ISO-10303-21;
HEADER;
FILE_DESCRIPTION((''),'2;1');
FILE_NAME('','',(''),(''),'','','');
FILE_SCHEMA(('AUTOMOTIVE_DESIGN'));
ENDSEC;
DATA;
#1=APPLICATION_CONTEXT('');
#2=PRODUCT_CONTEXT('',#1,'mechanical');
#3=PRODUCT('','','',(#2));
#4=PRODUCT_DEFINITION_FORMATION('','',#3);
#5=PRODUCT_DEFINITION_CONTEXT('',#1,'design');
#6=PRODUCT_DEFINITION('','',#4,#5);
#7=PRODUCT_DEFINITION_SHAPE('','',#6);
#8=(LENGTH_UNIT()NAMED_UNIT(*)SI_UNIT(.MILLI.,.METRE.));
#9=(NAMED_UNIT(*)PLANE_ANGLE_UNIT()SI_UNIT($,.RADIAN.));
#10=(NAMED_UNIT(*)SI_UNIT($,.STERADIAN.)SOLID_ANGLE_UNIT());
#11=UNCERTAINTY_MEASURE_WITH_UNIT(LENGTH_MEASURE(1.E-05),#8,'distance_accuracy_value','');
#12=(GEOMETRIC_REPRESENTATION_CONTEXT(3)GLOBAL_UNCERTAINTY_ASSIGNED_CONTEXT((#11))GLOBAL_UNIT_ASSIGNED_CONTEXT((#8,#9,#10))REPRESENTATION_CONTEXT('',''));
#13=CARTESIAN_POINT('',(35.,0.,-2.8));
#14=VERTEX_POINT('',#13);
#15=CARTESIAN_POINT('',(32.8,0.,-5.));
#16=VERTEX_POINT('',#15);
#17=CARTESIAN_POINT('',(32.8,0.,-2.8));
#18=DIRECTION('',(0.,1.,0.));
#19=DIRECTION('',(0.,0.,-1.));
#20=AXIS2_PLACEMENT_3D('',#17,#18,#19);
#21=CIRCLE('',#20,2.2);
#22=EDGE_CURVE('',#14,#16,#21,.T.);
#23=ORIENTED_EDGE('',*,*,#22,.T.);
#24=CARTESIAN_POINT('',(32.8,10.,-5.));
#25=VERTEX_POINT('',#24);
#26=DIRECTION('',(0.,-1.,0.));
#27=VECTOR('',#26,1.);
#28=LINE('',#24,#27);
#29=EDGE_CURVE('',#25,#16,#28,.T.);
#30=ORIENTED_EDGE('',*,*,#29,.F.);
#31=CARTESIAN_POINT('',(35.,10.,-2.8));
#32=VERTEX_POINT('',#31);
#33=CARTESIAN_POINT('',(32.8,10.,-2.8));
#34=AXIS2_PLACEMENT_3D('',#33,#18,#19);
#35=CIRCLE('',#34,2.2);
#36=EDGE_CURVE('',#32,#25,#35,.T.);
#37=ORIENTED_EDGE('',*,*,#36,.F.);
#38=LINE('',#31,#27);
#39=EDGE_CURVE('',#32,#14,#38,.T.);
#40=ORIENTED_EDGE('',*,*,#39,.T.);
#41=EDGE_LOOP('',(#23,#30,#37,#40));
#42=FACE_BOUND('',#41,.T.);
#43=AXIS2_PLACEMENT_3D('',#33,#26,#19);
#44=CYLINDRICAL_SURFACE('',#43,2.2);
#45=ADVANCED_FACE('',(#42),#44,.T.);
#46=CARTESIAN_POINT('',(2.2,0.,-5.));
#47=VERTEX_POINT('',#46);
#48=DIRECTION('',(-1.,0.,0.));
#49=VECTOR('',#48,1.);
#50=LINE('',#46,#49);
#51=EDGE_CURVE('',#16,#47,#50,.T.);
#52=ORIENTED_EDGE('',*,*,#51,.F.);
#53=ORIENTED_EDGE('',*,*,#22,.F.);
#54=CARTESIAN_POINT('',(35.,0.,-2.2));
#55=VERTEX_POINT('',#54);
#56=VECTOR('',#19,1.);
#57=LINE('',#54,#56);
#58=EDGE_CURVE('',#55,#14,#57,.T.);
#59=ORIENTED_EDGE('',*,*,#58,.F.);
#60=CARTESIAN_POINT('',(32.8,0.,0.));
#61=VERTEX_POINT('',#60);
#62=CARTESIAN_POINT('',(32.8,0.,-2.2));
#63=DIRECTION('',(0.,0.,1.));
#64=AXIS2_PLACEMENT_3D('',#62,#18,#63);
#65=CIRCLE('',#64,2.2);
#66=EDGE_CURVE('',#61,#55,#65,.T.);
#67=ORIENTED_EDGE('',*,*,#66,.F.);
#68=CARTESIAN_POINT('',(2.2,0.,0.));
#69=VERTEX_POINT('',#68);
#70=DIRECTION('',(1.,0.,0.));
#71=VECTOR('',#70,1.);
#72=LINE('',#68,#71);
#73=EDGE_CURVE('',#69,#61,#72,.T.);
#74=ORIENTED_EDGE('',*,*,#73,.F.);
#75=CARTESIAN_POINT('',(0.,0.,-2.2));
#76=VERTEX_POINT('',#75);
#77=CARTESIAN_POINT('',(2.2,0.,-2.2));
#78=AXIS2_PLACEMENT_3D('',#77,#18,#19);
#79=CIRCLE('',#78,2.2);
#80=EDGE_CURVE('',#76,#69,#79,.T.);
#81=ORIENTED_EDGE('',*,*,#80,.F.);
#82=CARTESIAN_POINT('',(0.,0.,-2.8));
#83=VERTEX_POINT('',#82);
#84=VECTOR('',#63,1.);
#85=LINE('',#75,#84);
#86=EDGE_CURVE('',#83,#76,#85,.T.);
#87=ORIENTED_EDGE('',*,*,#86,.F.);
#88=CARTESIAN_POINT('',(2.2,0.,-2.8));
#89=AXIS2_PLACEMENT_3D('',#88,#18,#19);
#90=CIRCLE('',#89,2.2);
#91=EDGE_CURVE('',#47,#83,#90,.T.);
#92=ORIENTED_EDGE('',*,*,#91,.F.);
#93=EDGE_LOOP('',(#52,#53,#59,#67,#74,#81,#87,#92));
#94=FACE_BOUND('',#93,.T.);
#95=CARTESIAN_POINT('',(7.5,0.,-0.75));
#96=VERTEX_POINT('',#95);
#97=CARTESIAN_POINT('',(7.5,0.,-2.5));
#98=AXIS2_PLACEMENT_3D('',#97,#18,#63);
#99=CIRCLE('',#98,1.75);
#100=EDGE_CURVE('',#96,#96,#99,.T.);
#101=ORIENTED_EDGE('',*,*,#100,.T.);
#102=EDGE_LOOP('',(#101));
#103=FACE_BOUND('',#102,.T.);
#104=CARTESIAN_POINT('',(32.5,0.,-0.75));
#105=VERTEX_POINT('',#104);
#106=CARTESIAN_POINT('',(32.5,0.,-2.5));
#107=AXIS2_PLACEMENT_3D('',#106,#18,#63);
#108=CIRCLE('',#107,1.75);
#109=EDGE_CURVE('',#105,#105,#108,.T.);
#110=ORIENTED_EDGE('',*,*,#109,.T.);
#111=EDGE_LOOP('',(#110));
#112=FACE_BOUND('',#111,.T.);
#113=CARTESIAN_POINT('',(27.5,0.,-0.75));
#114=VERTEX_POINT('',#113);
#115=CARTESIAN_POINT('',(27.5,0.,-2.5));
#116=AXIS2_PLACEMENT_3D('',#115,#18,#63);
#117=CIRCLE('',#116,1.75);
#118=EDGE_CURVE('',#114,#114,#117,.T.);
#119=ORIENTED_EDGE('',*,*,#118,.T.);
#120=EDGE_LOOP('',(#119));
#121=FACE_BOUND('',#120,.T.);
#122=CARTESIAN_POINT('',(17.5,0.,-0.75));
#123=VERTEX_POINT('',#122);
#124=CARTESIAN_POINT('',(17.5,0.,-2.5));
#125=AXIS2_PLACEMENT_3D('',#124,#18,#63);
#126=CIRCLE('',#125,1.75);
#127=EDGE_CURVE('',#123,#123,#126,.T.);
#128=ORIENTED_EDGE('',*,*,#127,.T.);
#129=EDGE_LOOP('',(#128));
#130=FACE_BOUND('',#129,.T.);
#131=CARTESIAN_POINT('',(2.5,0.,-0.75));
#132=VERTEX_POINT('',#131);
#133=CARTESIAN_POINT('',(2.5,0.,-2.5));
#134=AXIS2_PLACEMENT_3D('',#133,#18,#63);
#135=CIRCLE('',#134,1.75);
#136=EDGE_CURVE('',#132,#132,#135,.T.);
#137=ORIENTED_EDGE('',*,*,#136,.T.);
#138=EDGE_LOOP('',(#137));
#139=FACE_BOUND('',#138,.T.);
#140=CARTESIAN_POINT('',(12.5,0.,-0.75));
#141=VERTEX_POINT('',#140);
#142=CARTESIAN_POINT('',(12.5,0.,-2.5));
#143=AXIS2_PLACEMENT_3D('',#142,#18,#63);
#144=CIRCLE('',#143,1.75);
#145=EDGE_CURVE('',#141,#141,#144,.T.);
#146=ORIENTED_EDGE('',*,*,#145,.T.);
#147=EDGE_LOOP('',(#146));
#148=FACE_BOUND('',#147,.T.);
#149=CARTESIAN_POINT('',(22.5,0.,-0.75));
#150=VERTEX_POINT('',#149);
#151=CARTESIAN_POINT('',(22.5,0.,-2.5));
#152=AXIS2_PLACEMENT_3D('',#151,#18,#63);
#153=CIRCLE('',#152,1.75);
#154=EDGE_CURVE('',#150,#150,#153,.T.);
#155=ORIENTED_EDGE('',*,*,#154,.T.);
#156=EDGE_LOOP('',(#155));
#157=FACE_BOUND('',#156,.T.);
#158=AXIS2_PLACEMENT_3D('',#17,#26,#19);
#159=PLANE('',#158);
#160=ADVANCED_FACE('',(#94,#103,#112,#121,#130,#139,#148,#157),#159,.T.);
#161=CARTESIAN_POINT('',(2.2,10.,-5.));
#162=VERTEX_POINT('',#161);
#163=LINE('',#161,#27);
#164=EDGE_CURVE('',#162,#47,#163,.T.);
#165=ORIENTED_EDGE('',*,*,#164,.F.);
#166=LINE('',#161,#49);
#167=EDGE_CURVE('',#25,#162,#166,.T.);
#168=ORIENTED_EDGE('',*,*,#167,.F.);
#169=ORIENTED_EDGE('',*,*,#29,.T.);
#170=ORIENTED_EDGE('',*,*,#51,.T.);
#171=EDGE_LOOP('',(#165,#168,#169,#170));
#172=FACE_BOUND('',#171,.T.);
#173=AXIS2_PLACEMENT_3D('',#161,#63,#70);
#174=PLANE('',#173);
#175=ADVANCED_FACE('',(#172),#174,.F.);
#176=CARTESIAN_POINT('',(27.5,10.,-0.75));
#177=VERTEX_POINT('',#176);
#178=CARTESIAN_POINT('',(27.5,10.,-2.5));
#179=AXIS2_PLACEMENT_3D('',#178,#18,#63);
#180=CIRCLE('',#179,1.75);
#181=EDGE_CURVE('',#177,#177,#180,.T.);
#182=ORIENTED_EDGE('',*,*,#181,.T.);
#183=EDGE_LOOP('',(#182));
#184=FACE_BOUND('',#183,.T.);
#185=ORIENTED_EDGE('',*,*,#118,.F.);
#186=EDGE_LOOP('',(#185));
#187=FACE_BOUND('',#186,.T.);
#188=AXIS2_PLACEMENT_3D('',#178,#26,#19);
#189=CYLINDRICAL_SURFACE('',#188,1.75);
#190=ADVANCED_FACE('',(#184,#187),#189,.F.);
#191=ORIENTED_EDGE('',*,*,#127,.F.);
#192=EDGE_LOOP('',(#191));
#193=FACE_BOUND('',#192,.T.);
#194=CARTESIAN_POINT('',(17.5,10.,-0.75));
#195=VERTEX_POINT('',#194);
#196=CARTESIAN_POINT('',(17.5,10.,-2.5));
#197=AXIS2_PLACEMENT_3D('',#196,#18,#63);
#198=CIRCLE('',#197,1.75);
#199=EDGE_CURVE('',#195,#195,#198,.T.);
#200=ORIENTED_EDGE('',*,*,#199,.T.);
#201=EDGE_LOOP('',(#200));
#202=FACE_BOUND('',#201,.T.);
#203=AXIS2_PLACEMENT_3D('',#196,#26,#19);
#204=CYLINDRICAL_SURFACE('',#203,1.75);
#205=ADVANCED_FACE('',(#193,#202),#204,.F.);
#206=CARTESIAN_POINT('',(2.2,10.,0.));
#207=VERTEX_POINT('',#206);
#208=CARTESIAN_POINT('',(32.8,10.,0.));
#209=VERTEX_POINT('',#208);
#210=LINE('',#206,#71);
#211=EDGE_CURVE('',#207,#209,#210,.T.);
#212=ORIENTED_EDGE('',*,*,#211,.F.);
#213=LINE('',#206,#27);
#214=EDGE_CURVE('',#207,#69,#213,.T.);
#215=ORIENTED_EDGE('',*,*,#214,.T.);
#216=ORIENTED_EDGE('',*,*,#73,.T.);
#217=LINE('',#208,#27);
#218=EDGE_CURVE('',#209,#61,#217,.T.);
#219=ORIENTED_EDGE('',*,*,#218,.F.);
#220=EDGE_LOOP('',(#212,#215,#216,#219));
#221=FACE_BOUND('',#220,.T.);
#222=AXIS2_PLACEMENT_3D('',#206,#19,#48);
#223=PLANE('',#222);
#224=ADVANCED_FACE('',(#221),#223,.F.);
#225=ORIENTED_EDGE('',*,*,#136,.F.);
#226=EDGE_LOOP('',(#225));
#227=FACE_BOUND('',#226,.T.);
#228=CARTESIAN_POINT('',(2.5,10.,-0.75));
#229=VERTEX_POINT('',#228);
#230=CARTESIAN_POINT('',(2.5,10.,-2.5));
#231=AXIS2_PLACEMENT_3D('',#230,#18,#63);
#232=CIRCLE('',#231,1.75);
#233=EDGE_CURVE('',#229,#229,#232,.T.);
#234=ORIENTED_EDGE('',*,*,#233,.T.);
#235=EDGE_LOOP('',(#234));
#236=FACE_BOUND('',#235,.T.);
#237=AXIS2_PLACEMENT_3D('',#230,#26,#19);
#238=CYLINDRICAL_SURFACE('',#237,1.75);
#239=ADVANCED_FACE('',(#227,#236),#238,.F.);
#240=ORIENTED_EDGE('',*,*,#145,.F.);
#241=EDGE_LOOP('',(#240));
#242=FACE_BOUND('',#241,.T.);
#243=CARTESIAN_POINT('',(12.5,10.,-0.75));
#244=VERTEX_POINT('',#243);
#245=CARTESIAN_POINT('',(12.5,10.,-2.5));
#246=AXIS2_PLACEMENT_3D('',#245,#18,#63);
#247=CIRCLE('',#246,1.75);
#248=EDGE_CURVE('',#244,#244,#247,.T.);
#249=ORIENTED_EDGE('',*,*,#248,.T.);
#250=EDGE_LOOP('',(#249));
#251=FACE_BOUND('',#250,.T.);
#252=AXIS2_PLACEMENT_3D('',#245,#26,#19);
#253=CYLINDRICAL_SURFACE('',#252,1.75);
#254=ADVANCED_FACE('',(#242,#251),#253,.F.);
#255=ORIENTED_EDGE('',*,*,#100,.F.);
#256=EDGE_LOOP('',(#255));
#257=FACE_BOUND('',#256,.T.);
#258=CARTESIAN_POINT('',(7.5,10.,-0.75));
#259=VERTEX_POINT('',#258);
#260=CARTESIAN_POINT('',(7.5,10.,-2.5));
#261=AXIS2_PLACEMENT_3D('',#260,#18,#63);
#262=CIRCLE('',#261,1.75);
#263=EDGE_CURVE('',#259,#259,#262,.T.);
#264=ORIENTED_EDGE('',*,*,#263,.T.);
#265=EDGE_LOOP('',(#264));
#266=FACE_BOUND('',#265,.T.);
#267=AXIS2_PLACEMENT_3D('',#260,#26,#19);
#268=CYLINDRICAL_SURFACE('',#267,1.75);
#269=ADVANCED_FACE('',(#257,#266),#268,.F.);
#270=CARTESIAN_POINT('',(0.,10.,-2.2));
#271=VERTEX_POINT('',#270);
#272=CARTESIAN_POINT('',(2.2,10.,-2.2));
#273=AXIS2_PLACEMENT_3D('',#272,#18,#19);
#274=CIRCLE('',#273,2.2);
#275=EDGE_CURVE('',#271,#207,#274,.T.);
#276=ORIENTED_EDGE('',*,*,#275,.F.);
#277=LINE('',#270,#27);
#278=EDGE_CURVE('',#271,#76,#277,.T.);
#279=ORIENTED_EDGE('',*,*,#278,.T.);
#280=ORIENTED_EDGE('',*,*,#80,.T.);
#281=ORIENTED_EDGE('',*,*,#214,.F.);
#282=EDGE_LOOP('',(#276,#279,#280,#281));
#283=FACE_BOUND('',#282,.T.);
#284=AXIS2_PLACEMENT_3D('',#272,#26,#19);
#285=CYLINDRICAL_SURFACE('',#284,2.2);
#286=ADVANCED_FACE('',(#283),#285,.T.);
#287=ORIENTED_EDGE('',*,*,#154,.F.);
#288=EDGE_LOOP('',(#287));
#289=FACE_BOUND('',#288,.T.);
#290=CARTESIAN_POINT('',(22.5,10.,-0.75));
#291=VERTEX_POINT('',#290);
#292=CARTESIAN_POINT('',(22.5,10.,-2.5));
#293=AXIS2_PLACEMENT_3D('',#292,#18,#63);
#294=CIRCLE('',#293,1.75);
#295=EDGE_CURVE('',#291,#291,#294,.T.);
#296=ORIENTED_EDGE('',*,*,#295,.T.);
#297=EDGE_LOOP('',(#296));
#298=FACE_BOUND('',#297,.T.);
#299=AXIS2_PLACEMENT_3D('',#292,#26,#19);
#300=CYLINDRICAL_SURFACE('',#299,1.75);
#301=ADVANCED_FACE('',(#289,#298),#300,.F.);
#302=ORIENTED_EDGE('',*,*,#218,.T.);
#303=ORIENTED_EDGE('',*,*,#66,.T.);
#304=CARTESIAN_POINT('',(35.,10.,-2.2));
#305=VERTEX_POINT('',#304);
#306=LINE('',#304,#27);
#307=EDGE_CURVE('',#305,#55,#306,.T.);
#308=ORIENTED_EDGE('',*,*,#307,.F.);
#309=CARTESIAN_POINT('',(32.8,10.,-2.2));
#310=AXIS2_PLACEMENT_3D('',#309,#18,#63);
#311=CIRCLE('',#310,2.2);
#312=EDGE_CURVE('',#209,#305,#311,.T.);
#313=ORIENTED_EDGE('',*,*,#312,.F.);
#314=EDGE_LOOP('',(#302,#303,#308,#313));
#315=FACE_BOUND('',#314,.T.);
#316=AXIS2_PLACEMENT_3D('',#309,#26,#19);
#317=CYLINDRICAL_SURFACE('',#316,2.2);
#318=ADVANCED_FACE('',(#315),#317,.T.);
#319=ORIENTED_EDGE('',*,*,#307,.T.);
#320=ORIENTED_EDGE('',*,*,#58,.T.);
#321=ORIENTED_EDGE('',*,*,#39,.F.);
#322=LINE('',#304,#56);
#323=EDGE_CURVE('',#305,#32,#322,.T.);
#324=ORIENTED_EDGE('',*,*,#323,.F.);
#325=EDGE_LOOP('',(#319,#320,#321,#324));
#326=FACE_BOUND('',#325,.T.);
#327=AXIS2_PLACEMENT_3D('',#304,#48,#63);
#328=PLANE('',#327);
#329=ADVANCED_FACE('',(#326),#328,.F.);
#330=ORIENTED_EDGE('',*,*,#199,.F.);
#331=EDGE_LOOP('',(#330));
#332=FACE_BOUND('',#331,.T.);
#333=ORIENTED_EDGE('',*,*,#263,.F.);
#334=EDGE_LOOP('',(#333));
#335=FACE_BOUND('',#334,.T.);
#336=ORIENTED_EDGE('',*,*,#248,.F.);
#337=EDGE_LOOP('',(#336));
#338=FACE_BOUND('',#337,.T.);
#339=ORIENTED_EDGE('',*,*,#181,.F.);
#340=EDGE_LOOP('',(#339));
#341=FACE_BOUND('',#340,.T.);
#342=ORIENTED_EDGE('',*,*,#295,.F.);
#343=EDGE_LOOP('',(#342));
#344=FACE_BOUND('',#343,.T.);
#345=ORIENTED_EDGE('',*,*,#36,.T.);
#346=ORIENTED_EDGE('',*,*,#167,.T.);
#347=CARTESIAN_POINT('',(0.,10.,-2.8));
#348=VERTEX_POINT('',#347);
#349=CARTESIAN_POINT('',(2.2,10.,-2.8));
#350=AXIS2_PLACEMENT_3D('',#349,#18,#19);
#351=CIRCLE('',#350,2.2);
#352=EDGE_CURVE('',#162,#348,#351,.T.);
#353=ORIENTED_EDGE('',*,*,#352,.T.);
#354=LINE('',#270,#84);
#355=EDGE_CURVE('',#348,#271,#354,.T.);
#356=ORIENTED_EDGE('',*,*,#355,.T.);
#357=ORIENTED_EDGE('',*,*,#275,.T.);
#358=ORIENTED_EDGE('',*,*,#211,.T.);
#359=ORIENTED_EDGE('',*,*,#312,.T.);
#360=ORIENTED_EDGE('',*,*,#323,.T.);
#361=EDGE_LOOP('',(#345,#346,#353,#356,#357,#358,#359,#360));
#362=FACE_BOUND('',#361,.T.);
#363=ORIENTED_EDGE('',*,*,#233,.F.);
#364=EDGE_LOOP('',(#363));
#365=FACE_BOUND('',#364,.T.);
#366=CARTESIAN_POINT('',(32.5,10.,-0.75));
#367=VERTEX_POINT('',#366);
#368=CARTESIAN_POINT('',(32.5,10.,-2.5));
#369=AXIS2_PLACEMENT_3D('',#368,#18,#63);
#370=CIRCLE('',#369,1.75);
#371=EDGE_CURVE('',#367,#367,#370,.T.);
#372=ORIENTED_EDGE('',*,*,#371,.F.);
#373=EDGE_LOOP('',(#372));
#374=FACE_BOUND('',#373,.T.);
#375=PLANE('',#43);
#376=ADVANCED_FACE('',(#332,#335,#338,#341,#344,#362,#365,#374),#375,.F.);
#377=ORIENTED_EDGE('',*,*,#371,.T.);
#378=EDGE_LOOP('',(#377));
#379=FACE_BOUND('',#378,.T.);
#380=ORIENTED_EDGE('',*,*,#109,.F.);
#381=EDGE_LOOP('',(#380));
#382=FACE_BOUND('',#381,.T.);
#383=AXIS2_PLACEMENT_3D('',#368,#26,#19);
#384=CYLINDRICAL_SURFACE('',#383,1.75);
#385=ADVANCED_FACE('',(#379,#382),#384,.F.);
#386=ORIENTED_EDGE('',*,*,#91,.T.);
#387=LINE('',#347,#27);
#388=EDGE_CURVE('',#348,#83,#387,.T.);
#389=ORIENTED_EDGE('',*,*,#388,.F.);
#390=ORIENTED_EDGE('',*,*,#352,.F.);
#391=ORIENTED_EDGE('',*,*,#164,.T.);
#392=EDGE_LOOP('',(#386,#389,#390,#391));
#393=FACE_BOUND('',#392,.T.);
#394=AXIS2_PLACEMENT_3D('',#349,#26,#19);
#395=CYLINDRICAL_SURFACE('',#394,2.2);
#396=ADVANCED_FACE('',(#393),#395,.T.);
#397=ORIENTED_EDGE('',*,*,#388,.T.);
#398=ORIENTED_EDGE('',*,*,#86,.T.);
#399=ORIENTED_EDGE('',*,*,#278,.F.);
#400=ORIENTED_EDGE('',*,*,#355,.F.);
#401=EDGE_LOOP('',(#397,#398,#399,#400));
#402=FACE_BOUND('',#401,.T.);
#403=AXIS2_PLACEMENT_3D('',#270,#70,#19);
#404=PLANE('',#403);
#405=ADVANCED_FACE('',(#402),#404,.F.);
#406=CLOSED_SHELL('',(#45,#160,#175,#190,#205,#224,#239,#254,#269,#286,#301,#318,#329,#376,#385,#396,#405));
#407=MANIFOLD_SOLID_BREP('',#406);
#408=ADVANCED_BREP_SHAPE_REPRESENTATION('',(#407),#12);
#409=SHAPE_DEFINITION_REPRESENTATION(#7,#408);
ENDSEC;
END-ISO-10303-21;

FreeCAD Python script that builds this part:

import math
import FreeCAD as App
import Part
import Sketcher

V = App.Vector

doc = App.newDocument("Part")
body = doc.addObject("PartDesign::Body", "Body")

sketch1 = body.newObject("Sketcher::SketchObject", "Sketch")
sketch1.AttachmentSupport = (doc.getObject("XZ_Plane"), [""])
sketch1.MapMode = "FlatFace"
sketch1.addGeometry([
    Part.LineSegment(V(2.2, 0, 0), V(32.8, 0, 0)),
    Part.ArcOfCircle(Part.Circle(V(32.8, -2.2, 0), V(0, 0, 1), 2.2), math.radians(0), math.radians(90)),
    Part.LineSegment(V(35, -2.2, 0), V(35, -2.8, 0)),
    Part.ArcOfCircle(Part.Circle(V(32.8, -2.8, 0), V(0, 0, 1), 2.2), math.radians(-90), math.radians(0)),
    Part.LineSegment(V(32.8, -5, 0), V(2.2, -5, 0)),
    Part.ArcOfCircle(Part.Circle(V(2.2, -2.8, 0), V(0, 0, 1), 2.2), math.radians(180), math.radians(270)),
    Part.LineSegment(V(0, -2.8, 0), V(0, -2.2, 0)),
    Part.ArcOfCircle(Part.Circle(V(2.2, -2.2, 0), V(0, 0, 1), 2.2), math.radians(90), math.radians(180)),
    Part.Circle(V(2.5, -2.5, 0), V(0, 0, 1), 1.8),
    Part.Circle(V(7.5, -2.5, 0), V(0, 0, 1), 1.8),
    Part.Circle(V(12.5, -2.5, 0), V(0, 0, 1), 1.8),
    Part.Circle(V(17.5, -2.5, 0), V(0, 0, 1), 1.8),
    Part.Circle(V(22.5, -2.5, 0), V(0, 0, 1), 1.8),
    Part.Circle(V(27.5, -2.5, 0), V(0, 0, 1), 1.8),
    Part.Circle(V(32.5, -2.5, 0), V(0, 0, 1), 1.8),
], False)
sketch1.addConstraint([
    Sketcher.Constraint("Tangent", 0, 2, 1, 2),
    Sketcher.Constraint("Tangent", 1, 1, 2, 1),
    Sketcher.Constraint("Tangent", 2, 2, 3, 2),
    Sketcher.Constraint("Tangent", 3, 1, 4, 1),
    Sketcher.Constraint("Tangent", 4, 2, 5, 2),
    Sketcher.Constraint("Tangent", 5, 1, 6, 1),
    Sketcher.Constraint("Tangent", 6, 2, 7, 2),
    Sketcher.Constraint("Tangent", 7, 1, 0, 1),
    Sketcher.Constraint("Horizontal", 0),
    Sketcher.Constraint("Vertical", 2),
    Sketcher.Constraint("Horizontal", 4),
    Sketcher.Constraint("Vertical", 6),
    Sketcher.Constraint("Equal", 1, 3),
    Sketcher.Constraint("Equal", 3, 5),
    Sketcher.Constraint("Equal", 5, 7),
    Sketcher.Constraint("Equal", 8, 9),
    Sketcher.Constraint("Equal", 9, 10),
    Sketcher.Constraint("Equal", 10, 11),
    Sketcher.Constraint("Equal", 11, 12),
    Sketcher.Constraint("Equal", 12, 13),
    Sketcher.Constraint("Equal", 13, 14),
    Sketcher.Constraint("PointOnObject", 0, 2, -1),
    Sketcher.Constraint("PointOnObject", 5, 1, -2),
    Sketcher.Constraint("Horizontal", 8, 3, 9, 3),
    Sketcher.Constraint("Horizontal", 9, 3, 10, 3),
    Sketcher.Constraint("Horizontal", 10, 3, 11, 3),
    Sketcher.Constraint("Horizontal", 11, 3, 12, 3),
    Sketcher.Constraint("Horizontal", 12, 3, 13, 3),
    Sketcher.Constraint("Horizontal", 13, 3, 14, 3),
    Sketcher.Constraint("Diameter", 8, 3.5),
    Sketcher.Constraint("Radius", 1, 2.2),
    Sketcher.Constraint("DistanceX", 0, 1, 0, 2, 30.6),
    Sketcher.Constraint("DistanceY", 2, 2, 2, 1, 0.6),
    Sketcher.Constraint("DistanceX", 8, 3, 9, 3, 5.0),
    Sketcher.Constraint("DistanceX", 9, 3, 10, 3, 5.0),
    Sketcher.Constraint("DistanceX", 10, 3, 11, 3, 5.0),
    Sketcher.Constraint("DistanceX", 11, 3, 12, 3, 5.0),
    Sketcher.Constraint("DistanceX", 12, 3, 13, 3, 5.0),
    Sketcher.Constraint("DistanceX", 13, 3, 14, 3, 5.0),
    Sketcher.Constraint("DistanceX", -1, 1, 8, 3, 2.5),
    Sketcher.Constraint("DistanceY", 8, 3, -1, 1, 2.5),
])
pad1 = body.newObject("PartDesign::Pad", "Pad")
pad1.Profile = sketch1
pad1.Length = 10
pad1.Reversed = True

doc.recompute()
